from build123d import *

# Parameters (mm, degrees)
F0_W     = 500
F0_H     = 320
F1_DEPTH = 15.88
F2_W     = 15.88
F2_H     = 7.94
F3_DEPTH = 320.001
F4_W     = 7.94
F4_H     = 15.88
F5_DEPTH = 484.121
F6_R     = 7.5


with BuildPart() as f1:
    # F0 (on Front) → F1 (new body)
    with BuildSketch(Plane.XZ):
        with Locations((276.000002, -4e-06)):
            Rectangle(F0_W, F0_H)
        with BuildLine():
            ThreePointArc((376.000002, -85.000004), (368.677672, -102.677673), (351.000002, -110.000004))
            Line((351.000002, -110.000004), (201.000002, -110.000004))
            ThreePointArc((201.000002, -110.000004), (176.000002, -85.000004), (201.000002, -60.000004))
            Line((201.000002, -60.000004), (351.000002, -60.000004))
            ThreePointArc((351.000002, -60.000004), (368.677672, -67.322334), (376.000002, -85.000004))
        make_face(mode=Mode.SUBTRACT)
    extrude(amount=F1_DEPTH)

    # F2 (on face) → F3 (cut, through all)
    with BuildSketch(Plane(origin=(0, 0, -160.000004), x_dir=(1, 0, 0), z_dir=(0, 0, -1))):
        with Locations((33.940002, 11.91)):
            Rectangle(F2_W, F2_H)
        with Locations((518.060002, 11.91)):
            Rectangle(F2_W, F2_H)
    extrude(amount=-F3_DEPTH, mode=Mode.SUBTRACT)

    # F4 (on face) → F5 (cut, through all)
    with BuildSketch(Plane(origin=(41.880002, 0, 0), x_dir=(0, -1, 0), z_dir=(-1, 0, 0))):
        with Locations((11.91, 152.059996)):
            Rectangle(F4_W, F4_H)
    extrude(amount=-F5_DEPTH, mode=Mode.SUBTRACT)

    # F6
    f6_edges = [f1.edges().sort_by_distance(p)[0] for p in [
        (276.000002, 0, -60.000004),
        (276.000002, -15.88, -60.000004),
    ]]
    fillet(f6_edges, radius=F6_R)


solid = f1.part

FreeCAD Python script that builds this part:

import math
import FreeCAD as App
import Part
import Sketcher
from FreeCAD import Vector


def edges_at(feature, points):
    """Names of the edges that pass closest to the given points."""
    edges = feature.Shape.Edges
    near = lambda p: min(range(len(edges)), key=lambda i: edges[i].distToShape(Part.Vertex(*p))[0])
    return sorted({f"Edge{near(p) + 1}" for p in points})

doc = App.newDocument("Part")
body = doc.addObject("PartDesign::Body", "Body")

# Sketch on XZ plane
sketch1 = body.newObject("Sketcher::SketchObject", "Sketch")
sketch1.AttachmentSupport = (doc.getObject("XZ_Plane"), [""])
sketch1.MapMode = "FlatFace"
sketch1.addGeometry([
    Part.LineSegment(Vector(26.000002, 159.999996, 0), Vector(26.000002, -160.000004, 0)),  # 0
    Part.LineSegment(Vector(26.000002, -160.000004, 0), Vector(526.000002, -160.000004, 0)),  # 1
    Part.LineSegment(Vector(526.000002, -160.000004, 0), Vector(526.000002, 159.999996, 0)),  # 2
    Part.LineSegment(Vector(526.000002, 159.999996, 0), Vector(26.000002, 159.999996, 0)),  # 3
    Part.ArcOfCircle(Part.Circle(Vector(351.000004, -85.000002, 0), Vector(0, 0, 1), 24.999998), math.radians(-0.000004), math.radians(90.000004)),  # 4
    Part.ArcOfCircle(Part.Circle(Vector(351.000002, -85.000004, 0), Vector(0, 0, 1), 25), math.radians(-90), math.radians(0)),  # 5
    Part.LineSegment(Vector(351.000002, -110.000004, 0), Vector(201.000002, -110.000004, 0)),  # 6
    Part.ArcOfCircle(Part.Circle(Vector(201.000002, -85.000004, 0), Vector(0, 0, 1), 25), math.radians(90), math.radians(270)),  # 7
    Part.LineSegment(Vector(201.000002, -60.000004, 0), Vector(351.000002, -60.000004, 0)),  # 8
], False)
sketch1.addConstraint([
    Sketcher.Constraint("Coincident", 0, 2, 1, 1),
    Sketcher.Constraint("Coincident", 1, 2, 2, 1),
    Sketcher.Constraint("Coincident", 2, 2, 3, 1),
    Sketcher.Constraint("Coincident", 3, 2, 0, 1),
    Sketcher.Constraint("Tangent", 4, 1, 5, 2),
    Sketcher.Constraint("Tangent", 5, 1, 6, 1),
    Sketcher.Constraint("Tangent", 6, 2, 7, 2),
    Sketcher.Constraint("Tangent", 7, 1, 8, 1),
    Sketcher.Constraint("Tangent", 8, 2, 4, 2),
    Sketcher.Constraint("Vertical", 0),
    Sketcher.Constraint("Horizontal", 1),
    Sketcher.Constraint("Vertical", 2),
    Sketcher.Constraint("Horizontal", 3),
    Sketcher.Constraint("Horizontal", 6),
    Sketcher.Constraint("Horizontal", 8),
    Sketcher.Constraint("Equal", 4, 5),
    Sketcher.Constraint("Horizontal", 7, 3, 4, 1),
    Sketcher.Constraint("Radius", 4, 24.999998),
    Sketcher.Constraint("DistanceX", 1, 1, 1, 2, 500.0),
    Sketcher.Constraint("DistanceX", 6, 2, 6, 1, 150.0),
    Sketcher.Constraint("DistanceY", 0, 2, 0, 1, 320.0),
    Sketcher.Constraint("DistanceX", -1, 1, 5, 3, 351.000002),
    Sketcher.Constraint("DistanceX", -1, 1, 0, 2, 26.000002),
    Sketcher.Constraint("DistanceY", 0, 2, 7, 3, 75.0),
    Sketcher.Constraint("DistanceY", 4, 3, -1, 1, 85.000002),
])
pad1 = body.newObject("PartDesign::Pad", "Pad")
pad1.Profile = sketch1
pad1.Length = 15.88

# Sketch on XY plane
sketch2 = body.newObject("Sketcher::SketchObject", "Sketch001")
sketch2.AttachmentSupport = (doc.getObject("XY_Plane"), [""])
sketch2.MapMode = "FlatFace"
sketch2.AttachmentOffset = App.Placement(Vector(0, 0, -160.000004), App.Rotation())
sketch2.addGeometry([
    Part.LineSegment(Vector(26.000002, -15.88, 0), Vector(26.000002, -7.94, 0)),  # 0
    Part.LineSegment(Vector(26.000002, -7.94, 0), Vector(41.880002, -7.94, 0)),  # 1
    Part.LineSegment(Vector(41.880002, -7.94, 0), Vector(41.880002, -15.88, 0)),  # 2
    Part.LineSegment(Vector(41.880002, -15.88, 0), Vector(26.000002, -15.88, 0)),  # 3
    Part.LineSegment(Vector(510.120002, -15.88, 0), Vector(510.120002, -7.94, 0)),  # 4
    Part.LineSegment(Vector(510.120002, -7.94, 0), Vector(526.000002, -7.94, 0)),  # 5
    Part.LineSegment(Vector(526.000002, -7.94, 0), Vector(526.000002, -15.88, 0)),  # 6
    Part.LineSegment(Vector(526.000002, -15.88, 0), Vector(510.120002, -15.88, 0)),  # 7
], False)
sketch2.addConstraint([
    Sketcher.Constraint("Coincident", 0, 2, 1, 1),
    Sketcher.Constraint("Coincident", 1, 2, 2, 1),
    Sketcher.Constraint("Coincident", 2, 2, 3, 1),
    Sketcher.Constraint("Coincident", 3, 2, 0, 1),
    Sketcher.Constraint("Coincident", 4, 2, 5, 1),
    Sketcher.Constraint("Coincident", 5, 2, 6, 1),
    Sketcher.Constraint("Coincident", 6, 2, 7, 1),
    Sketcher.Constraint("Coincident", 7, 2, 4, 1),
    Sketcher.Constraint("Vertical", 0),
    Sketcher.Constraint("Horizontal", 1),
    Sketcher.Constraint("Vertical", 2),
    Sketcher.Constraint("Horizontal", 3),
    Sketcher.Constraint("Vertical", 4),
    Sketcher.Constraint("Horizontal", 5),
    Sketcher.Constraint("Vertical", 6),
    Sketcher.Constraint("Horizontal", 7),
    Sketcher.Constraint("Horizontal", 1, 2, 4, 2),
    Sketcher.Constraint("Horizontal", 3, 2, 6, 2),
    Sketcher.Constraint("Equal", 3, 5),
    Sketcher.Constraint("DistanceX", -1, 1, 0, 2, 26.000002),
    Sketcher.Constraint("DistanceX", -1, 1, 5, 2, 526.000002),
    Sketcher.Constraint("DistanceX", 1, 1, 1, 2, 15.88),
    Sketcher.Constraint("DistanceY", 0, 1, 0, 2, 7.94),
    Sketcher.Constraint("DistanceY", 0, 2, -1, 1, 7.94),
])
pocket1 = body.newObject("PartDesign::Pocket", "Pocket")
pocket1.Profile = sketch2
pocket1.Type = "ThroughAll"
pocket1.Reversed = True

# Sketch on YZ plane
sketch3 = body.newObject("Sketcher::SketchObject", "Sketch002")
sketch3.AttachmentSupport = (doc.getObject("YZ_Plane"), [""])
sketch3.MapMode = "FlatFace"
sketch3.AttachmentOffset = App.Placement(Vector(0, 0, 41.880002), App.Rotation())
sketch3.addGeometry([
    Part.LineSegment(Vector(-7.94, 159.999996, 0), Vector(-7.94, 144.119996, 0)),
    Part.LineSegment(Vector(-7.94, 144.119996, 0), Vector(-15.88, 144.119996, 0)),
    Part.LineSegment(Vector(-15.88, 144.119996, 0), Vector(-15.88, 159.999996, 0)),
    Part.LineSegment(Vector(-15.88, 159.999996, 0), Vector(-7.94, 159.999996, 0)),
], False)
sketch3.addConstraint([
    Sketcher.Constraint("Coincident", 0, 2, 1, 1),
    Sketcher.Constraint("Coincident", 1, 2, 2, 1),
    Sketcher.Constraint("Coincident", 2, 2, 3, 1),
    Sketcher.Constraint("Coincident", 3, 2, 0, 1),
    Sketcher.Constraint("Vertical", 0),
    Sketcher.Constraint("Horizontal", 1),
    Sketcher.Constraint("Vertical", 2),
    Sketcher.Constraint("Horizontal", 3),
    Sketcher.Constraint("DistanceX", 1, 2, 1, 1, 7.94),
    Sketcher.Constraint("DistanceY", 0, 2, 0, 1, 15.88),
    Sketcher.Constraint("DistanceX", 0, 2, -1, 1, 7.94),
    Sketcher.Constraint("DistanceY", -1, 1, 0, 2, 144.119996),
])
pocket2 = body.newObject("PartDesign::Pocket", "Pocket001")
pocket2.Profile = sketch3
pocket2.Type = "ThroughAll"
pocket2.Reversed = True
doc.recompute()

fillet = body.newObject("PartDesign::Fillet", "Fillet")
fillet.Base = (pocket2, edges_at(pocket2, [(276, 0, -60), (276, -15.88, -60)]))
fillet.Radius = 7.5

doc.recompute()
